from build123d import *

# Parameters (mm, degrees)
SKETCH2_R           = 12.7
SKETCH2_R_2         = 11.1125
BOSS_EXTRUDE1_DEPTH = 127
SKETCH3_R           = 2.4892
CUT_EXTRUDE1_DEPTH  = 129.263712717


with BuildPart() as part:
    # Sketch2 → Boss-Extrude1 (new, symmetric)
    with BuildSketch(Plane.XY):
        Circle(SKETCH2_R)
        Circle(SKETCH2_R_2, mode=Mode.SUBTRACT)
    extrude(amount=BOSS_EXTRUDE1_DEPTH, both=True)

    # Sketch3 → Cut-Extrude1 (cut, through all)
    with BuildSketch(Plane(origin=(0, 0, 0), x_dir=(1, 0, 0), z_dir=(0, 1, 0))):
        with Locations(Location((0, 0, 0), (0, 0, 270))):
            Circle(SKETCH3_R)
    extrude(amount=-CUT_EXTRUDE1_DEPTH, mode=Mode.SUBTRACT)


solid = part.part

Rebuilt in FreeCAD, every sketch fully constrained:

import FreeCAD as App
import Part
import Sketcher
from FreeCAD import Vector
Q = App.Units.Quantity

doc = App.newDocument("Part")
body = doc.addObject("PartDesign::Body", "Body")

sketch1 = body.newObject("Sketcher::SketchObject", "Sketch")
sketch1.AttachmentSupport = (doc.getObject("XY_Plane"), [""])
sketch1.MapMode = "FlatFace"
sketch1.addGeometry(Part.Circle(Vector(0, 0, 0), Vector(0, 0, 1), 13), False)
sketch1.addGeometry(Part.Circle(Vector(0, 0, 0), Vector(0, 0, 1), 11), False)
sketch1.addConstraint(Sketcher.Constraint("Coincident", 0, 3, -1, 1))
sketch1.addConstraint(Sketcher.Constraint("Coincident", 1, 3, -1, 1))
sketch1.addConstraint(Sketcher.Constraint("Diameter", 0, Q("1 in")))
sketch1.addConstraint(Sketcher.Constraint("Diameter", 1, Q("0.875 in")))
pad1 = body.newObject("PartDesign::Pad", "Pad")
pad1.Profile = sketch1
pad1.Length = Q("10 in")
pad1.Midplane = True

sketch2 = body.newObject("Sketcher::SketchObject", "Sketch001")
sketch2.AttachmentSupport = (doc.getObject("XZ_Plane"), [""])
sketch2.MapMode = "FlatFace"
sketch2.addGeometry(Part.Circle(Vector(0, 0, 0), Vector(0, 0, 1), 2.5), False)
sketch2.addConstraint(Sketcher.Constraint("Coincident", 0, 3, -1, 1))
sketch2.addConstraint(Sketcher.Constraint("Diameter", 0, Q("0.196 in")))
pocket1 = body.newObject("PartDesign::Pocket", "Pocket")
pocket1.Profile = sketch2
pocket1.Type = "ThroughAll"
pocket1.Reversed = True

doc.recompute()
